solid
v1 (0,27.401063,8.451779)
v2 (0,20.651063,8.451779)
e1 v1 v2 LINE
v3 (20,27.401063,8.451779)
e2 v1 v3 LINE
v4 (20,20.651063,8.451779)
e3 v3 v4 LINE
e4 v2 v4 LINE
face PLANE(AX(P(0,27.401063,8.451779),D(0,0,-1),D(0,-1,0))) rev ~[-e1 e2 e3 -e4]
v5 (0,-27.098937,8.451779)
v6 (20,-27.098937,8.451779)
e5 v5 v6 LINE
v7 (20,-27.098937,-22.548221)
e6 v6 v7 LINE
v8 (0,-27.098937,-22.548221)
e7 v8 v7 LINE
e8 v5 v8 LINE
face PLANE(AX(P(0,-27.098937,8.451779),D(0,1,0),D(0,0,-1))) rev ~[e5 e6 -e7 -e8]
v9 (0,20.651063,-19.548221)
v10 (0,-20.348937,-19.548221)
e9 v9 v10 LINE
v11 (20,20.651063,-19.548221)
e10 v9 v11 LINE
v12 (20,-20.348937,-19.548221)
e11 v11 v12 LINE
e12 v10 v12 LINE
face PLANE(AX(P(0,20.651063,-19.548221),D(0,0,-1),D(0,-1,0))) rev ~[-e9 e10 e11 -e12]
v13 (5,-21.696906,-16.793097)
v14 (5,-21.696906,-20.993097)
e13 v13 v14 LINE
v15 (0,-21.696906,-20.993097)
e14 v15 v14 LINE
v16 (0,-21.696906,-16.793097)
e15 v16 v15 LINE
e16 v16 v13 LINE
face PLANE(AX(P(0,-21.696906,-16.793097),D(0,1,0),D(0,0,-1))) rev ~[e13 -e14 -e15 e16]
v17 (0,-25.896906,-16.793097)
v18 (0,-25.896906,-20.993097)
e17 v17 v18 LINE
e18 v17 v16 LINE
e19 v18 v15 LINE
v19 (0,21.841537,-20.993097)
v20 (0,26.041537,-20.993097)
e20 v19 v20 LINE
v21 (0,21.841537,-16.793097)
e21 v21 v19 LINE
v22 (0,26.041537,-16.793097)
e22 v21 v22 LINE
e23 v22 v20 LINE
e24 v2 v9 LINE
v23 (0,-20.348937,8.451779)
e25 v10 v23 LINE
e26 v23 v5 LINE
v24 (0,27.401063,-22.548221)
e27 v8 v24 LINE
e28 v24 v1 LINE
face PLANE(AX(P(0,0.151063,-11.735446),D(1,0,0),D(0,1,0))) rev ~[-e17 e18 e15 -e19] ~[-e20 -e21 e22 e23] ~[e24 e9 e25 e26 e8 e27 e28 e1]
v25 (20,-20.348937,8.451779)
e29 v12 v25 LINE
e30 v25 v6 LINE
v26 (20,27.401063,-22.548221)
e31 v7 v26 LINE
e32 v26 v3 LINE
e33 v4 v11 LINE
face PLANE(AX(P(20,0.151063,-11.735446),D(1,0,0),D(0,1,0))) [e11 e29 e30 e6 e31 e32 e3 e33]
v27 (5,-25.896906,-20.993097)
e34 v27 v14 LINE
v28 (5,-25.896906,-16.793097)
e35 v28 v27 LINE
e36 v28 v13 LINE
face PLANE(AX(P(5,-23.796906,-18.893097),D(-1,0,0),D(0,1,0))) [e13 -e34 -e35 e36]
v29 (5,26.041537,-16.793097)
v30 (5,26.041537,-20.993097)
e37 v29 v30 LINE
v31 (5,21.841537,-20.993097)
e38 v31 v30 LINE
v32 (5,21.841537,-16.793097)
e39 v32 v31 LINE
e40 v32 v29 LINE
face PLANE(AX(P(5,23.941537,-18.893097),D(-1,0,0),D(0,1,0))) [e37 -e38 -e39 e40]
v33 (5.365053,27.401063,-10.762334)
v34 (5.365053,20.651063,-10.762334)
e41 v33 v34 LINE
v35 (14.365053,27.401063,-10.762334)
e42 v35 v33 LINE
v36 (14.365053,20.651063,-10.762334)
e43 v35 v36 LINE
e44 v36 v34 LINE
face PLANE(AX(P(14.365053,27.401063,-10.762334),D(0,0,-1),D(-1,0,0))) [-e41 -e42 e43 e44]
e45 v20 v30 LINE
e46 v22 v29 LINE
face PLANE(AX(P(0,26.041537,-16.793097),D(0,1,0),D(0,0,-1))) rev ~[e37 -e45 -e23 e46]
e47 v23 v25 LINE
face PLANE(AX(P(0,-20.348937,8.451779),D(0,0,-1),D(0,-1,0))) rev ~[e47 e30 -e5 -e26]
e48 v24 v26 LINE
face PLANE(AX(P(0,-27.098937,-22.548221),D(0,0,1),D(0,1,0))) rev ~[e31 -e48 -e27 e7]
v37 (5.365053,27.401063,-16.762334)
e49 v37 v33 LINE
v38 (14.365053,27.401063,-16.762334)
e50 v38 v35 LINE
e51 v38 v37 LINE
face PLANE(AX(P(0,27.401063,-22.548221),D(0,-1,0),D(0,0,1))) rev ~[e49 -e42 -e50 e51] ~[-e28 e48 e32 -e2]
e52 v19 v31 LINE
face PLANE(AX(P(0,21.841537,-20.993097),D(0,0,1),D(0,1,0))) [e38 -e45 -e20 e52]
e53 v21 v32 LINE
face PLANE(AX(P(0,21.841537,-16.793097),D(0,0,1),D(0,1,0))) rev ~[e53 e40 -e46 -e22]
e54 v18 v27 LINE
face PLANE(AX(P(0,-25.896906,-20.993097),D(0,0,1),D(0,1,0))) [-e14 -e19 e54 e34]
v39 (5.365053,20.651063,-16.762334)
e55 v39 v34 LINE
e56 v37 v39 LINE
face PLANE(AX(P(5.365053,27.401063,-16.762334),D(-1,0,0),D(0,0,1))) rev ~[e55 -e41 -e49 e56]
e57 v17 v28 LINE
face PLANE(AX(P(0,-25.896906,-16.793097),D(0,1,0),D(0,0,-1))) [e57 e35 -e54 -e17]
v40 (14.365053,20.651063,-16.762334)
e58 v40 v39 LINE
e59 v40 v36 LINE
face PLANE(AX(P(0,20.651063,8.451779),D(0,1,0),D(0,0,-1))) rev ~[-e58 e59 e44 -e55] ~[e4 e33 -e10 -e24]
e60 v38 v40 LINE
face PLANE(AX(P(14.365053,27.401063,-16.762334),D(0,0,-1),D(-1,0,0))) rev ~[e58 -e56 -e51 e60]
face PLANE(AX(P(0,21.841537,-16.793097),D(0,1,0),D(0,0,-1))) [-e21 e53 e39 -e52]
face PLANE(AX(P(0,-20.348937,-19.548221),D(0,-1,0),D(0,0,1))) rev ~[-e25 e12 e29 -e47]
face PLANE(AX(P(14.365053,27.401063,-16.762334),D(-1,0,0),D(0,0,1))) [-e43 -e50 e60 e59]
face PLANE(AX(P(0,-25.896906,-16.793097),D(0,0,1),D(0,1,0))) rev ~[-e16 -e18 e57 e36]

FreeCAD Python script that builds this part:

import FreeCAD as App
import Part
import Sketcher
from FreeCAD import Vector
Q = App.Units.Quantity

doc = App.newDocument("Part")
params = doc.addObject("Spreadsheet::Sheet", "Params")
for row, (alias, value) in enumerate([
    ("sketch1_width", "41 mm"),
    ("sketch1_height", "31 mm"),
    ("sketch1_height2", "28 mm"),
    ("sketch1_width2", "54.5 mm"),
    ("pad1_length", "20 mm"),
    ("sketch2_width", "9 mm"),
    ("sketch2_height", "6 mm"),
    ("pocket1_length", "8 mm"),
    ("sketch3_width", "4.2 mm"),
    ("pocket2_length", "5 mm"),
], start=1):
    params.set(f"A{row}", alias)
    params.set(f"B{row}", "=" + value)
    params.setAlias(f"B{row}", alias)

body = doc.addObject("PartDesign::Body", "Body")

sketch1 = doc.addObject("Sketcher::SketchObject", "Sketch")
body.addObject(sketch1)
sketch1.AttachmentSupport = (doc.YZ_Plane, [""])
sketch1.MapMode = "FlatFace"
sketch1.addGeometry([
    Part.LineSegment(Vector(-27, -23, 0), Vector(27, -23, 0)),
    Part.LineSegment(Vector(27, -23, 0), Vector(27, 8, 0)),
    Part.LineSegment(Vector(27, 8, 0), Vector(21, 8, 0)),
    Part.LineSegment(Vector(21, 8, 0), Vector(21, -20, 0)),
    Part.LineSegment(Vector(21, -20, 0), Vector(-20, -20, 0)),
    Part.LineSegment(Vector(-20, -20, 0), Vector(-20, 8, 0)),
    Part.LineSegment(Vector(-20, 8, 0), Vector(-27, 8, 0)),
    Part.LineSegment(Vector(-27, 8, 0), Vector(-27, -23, 0)),
], False)
sketch1.addConstraint([
    Sketcher.Constraint("Coincident", 0, 2, 1, 1),
    Sketcher.Constraint("Coincident", 1, 2, 2, 1),
    Sketcher.Constraint("Coincident", 2, 2, 3, 1),
    Sketcher.Constraint("Coincident", 3, 2, 4, 1),
    Sketcher.Constraint("Coincident", 4, 2, 5, 1),
    Sketcher.Constraint("Coincident", 5, 2, 6, 1),
    Sketcher.Constraint("Coincident", 6, 2, 7, 1),
    Sketcher.Constraint("Coincident", 7, 2, 0, 1),
    Sketcher.Constraint("Horizontal", 0),
    Sketcher.Constraint("Vertical", 1),
    Sketcher.Constraint("Horizontal", 2),
    Sketcher.Constraint("Vertical", 3),
    Sketcher.Constraint("Horizontal", 4),
    Sketcher.Constraint("Vertical", 5),
    Sketcher.Constraint("Horizontal", 6),
    Sketcher.Constraint("Vertical", 7),
    Sketcher.Constraint("Horizontal", 2, 2, 5, 2),
    Sketcher.Constraint("Equal", 2, 6),
    Sketcher.Constraint("DistanceX", 4, 2, 4, 1, Q("41 mm")),
    Sketcher.Constraint("DistanceY", 1, 1, 1, 2, Q("31 mm")),
    Sketcher.Constraint("DistanceY", 3, 2, 3, 1, Q("28 mm")),
    Sketcher.Constraint("DistanceX", 0, 1, 0, 2, Q("54.5 mm")),
    Sketcher.Constraint("DistanceY", 0, 2, -1, 1, Q("22.548221 mm")),
    Sketcher.Constraint("DistanceX", -1, 1, 0, 2, Q("27.401063 mm")),
])
sketch1.setExpression("Constraints[18]", "Params.sketch1_width")
sketch1.setExpression("Constraints[19]", "Params.sketch1_height")
sketch1.setExpression("Constraints[20]", "Params.sketch1_height2")
sketch1.setExpression("Constraints[21]", "Params.sketch1_width2")
pad1 = doc.addObject("PartDesign::Pad", "Pad")
body.addObject(pad1)
pad1.Profile = sketch1
pad1.setExpression("Length", "Params.pad1_length")

sketch2 = doc.addObject("Sketcher::SketchObject", "Sketch001")
body.addObject(sketch2)
sketch2.AttachmentSupport = (doc.XZ_Plane, [""])
sketch2.MapMode = "FlatFace"
sketch2.AttachmentOffset = App.Placement(Vector(0, 0, -27.401063), App.Rotation())
sketch2.addGeometry([
    Part.LineSegment(Vector(14, -11, 0), Vector(14, -17, 0)),
    Part.LineSegment(Vector(14, -17, 0), Vector(5, -17, 0)),
    Part.LineSegment(Vector(5, -17, 0), Vector(5, -11, 0)),
    Part.LineSegment(Vector(5, -11, 0), Vector(14, -11, 0)),
], False)
sketch2.addConstraint([
    Sketcher.Constraint("Coincident", 0, 2, 1, 1),
    Sketcher.Constraint("Coincident", 1, 2, 2, 1),
    Sketcher.Constraint("Coincident", 2, 2, 3, 1),
    Sketcher.Constraint("Coincident", 3, 2, 0, 1),
    Sketcher.Constraint("Vertical", 0),
    Sketcher.Constraint("Horizontal", 1),
    Sketcher.Constraint("Vertical", 2),
    Sketcher.Constraint("Horizontal", 3),
    Sketcher.Constraint("DistanceX", 1, 2, 1, 1, Q("9 mm")),
    Sketcher.Constraint("DistanceY", 0, 2, 0, 1, Q("6 mm")),
    Sketcher.Constraint("DistanceX", -1, 1, 0, 2, Q("14.365053 mm")),
    Sketcher.Constraint("DistanceY", 0, 2, -1, 1, Q("16.762334 mm")),
])
sketch2.setExpression("Constraints[8]", "Params.sketch2_width")
sketch2.setExpression("Constraints[9]", "Params.sketch2_height")
pocket1 = doc.addObject("PartDesign::Pocket", "Pocket")
body.addObject(pocket1)
pocket1.Profile = sketch2
pocket1.setExpression("Length", "Params.pocket1_length")
pocket1.Reversed = True

sketch3 = doc.addObject("Sketcher::SketchObject", "Sketch002")
body.addObject(sketch3)
sketch3.AttachmentSupport = (doc.YZ_Plane, [""])
sketch3.MapMode = "FlatFace"
sketch3.addGeometry([
    Part.LineSegment(Vector(-25.9, -21, 0), Vector(-25.9, -16.8, 0)),
    Part.LineSegment(Vector(-25.9, -16.8, 0), Vector(-21.7, -16.8, 0)),
    Part.LineSegment(Vector(-21.7, -16.8, 0), Vector(-21.7, -21, 0)),
    Part.LineSegment(Vector(-21.7, -21, 0), Vector(-25.9, -21, 0)),
    Part.LineSegment(Vector(21.8, -21, 0), Vector(21.8, -16.8, 0)),
    Part.LineSegment(Vector(21.8, -16.8, 0), Vector(26, -16.8, 0)),
    Part.LineSegment(Vector(26, -16.8, 0), Vector(26, -21, 0)),
    Part.LineSegment(Vector(26, -21, 0), Vector(21.8, -21, 0)),
], False)
sketch3.addConstraint([
    Sketcher.Constraint("Coincident", 0, 2, 1, 1),
    Sketcher.Constraint("Coincident", 1, 2, 2, 1),
    Sketcher.Constraint("Coincident", 2, 2, 3, 1),
    Sketcher.Constraint("Coincident", 3, 2, 0, 1),
    Sketcher.Constraint("Coincident", 4, 2, 5, 1),
    Sketcher.Constraint("Coincident", 5, 2, 6, 1),
    Sketcher.Constraint("Coincident", 6, 2, 7, 1),
    Sketcher.Constraint("Coincident", 7, 2, 4, 1),
    Sketcher.Constraint("Vertical", 0),
    Sketcher.Constraint("Horizontal", 1),
    Sketcher.Constraint("Vertical", 2),
    Sketcher.Constraint("Horizontal", 3),
    Sketcher.Constraint("Vertical", 4),
    Sketcher.Constraint("Horizontal", 5),
    Sketcher.Constraint("Vertical", 6),
    Sketcher.Constraint("Horizontal", 7),
    Sketcher.Constraint("Horizontal", 1, 2, 4, 2),
    Sketcher.Constraint("Horizontal", 3, 2, 6, 2),
    Sketcher.Constraint("Equal", 3, 5),
    Sketcher.Constraint("Equal", 7, 0),
    Sketcher.Constraint("DistanceX", 1, 1, 1, 2, Q("4.2 mm")),
    Sketcher.Constraint("DistanceX", 0, 2, -1, 1, Q("25.896906 mm")),
    Sketcher.Constraint("DistanceY", 0, 2, -1, 1, Q("16.793097 mm")),
    Sketcher.Constraint("DistanceX", -1, 1, 4, 2, Q("21.841537 mm")),
])
sketch3.setExpression("Constraints[20]", "Params.sketch3_width")
pocket2 = doc.addObject("PartDesign::Pocket", "Pocket001")
body.addObject(pocket2)
pocket2.Profile = sketch3
pocket2.setExpression("Length", "Params.pocket2_length")
pocket2.Reversed = True

doc.recompute()
